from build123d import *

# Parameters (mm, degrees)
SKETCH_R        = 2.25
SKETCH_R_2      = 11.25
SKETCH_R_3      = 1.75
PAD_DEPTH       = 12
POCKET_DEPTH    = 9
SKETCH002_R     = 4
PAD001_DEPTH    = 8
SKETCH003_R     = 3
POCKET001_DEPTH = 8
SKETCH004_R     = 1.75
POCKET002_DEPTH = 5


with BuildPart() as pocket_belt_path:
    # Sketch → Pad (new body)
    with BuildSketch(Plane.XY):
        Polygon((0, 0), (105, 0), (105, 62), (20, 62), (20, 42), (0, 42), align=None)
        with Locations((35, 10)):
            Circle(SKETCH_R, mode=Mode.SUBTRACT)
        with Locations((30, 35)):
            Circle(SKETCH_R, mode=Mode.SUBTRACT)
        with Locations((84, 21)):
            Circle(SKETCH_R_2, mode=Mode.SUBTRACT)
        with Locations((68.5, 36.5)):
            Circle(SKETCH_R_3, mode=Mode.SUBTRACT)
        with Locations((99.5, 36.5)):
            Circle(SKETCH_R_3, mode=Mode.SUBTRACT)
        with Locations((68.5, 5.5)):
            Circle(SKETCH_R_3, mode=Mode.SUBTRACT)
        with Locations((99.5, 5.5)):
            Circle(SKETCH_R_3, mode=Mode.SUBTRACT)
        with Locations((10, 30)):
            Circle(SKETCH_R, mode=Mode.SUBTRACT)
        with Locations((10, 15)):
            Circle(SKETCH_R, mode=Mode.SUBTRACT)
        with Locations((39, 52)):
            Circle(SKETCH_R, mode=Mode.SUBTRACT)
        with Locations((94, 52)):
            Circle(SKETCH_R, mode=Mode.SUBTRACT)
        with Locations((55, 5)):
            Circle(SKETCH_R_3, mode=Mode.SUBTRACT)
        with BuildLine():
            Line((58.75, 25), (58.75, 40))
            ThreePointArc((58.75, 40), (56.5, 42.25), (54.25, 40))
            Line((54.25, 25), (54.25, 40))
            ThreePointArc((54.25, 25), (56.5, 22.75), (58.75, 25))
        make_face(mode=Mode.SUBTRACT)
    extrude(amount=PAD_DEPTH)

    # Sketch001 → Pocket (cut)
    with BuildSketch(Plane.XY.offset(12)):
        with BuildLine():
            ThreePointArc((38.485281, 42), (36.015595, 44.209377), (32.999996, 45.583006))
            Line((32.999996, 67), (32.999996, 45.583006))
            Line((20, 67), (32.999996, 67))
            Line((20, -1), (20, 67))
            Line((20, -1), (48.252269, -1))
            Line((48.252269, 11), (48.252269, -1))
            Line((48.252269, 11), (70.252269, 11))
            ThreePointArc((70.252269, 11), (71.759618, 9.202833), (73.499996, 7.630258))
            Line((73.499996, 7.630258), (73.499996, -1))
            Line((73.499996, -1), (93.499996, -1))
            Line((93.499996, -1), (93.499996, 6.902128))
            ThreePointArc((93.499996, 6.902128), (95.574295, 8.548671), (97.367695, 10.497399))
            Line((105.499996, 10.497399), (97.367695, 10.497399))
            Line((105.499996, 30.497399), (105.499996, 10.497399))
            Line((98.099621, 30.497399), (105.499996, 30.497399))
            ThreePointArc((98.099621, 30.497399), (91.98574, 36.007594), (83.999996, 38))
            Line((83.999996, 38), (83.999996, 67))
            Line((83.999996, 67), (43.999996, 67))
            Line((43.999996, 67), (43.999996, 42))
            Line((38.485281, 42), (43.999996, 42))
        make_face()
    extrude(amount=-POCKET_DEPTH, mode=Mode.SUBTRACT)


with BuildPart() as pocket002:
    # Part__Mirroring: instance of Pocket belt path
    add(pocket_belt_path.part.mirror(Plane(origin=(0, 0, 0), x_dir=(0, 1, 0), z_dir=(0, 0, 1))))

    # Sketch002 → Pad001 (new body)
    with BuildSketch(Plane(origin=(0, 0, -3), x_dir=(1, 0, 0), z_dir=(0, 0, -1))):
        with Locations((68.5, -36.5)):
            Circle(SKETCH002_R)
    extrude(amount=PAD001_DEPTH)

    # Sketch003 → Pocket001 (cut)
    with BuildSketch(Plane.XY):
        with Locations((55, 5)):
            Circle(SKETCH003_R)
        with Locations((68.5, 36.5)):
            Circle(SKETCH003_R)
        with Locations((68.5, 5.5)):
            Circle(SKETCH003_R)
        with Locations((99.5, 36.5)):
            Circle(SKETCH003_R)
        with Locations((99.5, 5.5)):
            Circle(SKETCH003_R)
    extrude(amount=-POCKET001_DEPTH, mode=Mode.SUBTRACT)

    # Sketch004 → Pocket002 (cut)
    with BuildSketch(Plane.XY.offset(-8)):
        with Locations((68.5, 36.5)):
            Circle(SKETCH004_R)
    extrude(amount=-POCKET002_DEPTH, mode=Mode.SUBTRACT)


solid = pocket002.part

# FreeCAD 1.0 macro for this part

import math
import FreeCAD as App
import Part
import Sketcher

V = App.Vector
Q = App.Units.Quantity


def add_polygon(sketch, points):
    """Adds a closed chain of lines whose ends are joined by coincident constraints."""
    first, n = sketch.GeometryCount, len(points)
    for a, b in zip(points, points[1:] + points[:1]):
        sketch.addGeometry(Part.LineSegment(App.Vector(*a, 0), App.Vector(*b, 0)), False)
    for i in range(n):
        sketch.addConstraint(Sketcher.Constraint("Coincident", first + i, 2, first + (i + 1) % n, 1))

doc = App.newDocument("Part")
body = doc.addObject("PartDesign::Body", "Body")

# Sketch on XY plane
sketch1 = body.newObject("Sketcher::SketchObject", "Sketch")
sketch1.AttachmentSupport = (doc.getObject("XY_Plane"), [""])
sketch1.MapMode = "FlatFace"
add_polygon(sketch1, [(0, 0), (105, 0), (105, 62), (20, 62), (20, 42), (0, 42)])  # lines 0-5
sketch1.addGeometry(Part.Circle(V(10, 15, 0), V(0, 0, 1), 2.2), False)  # 6
sketch1.addGeometry(Part.Circle(V(35, 10, 0), V(0, 0, 1), 2.2), False)  # 7
sketch1.addGeometry(Part.Circle(V(55, 5, 0), V(0, 0, 1), 1.8), False)  # 8
sketch1.addGeometry(Part.Circle(V(68.5, 5.5, 0), V(0, 0, 1), 1.8), False)  # 9
sketch1.addGeometry(Part.Circle(V(99.5, 5.5, 0), V(0, 0, 1), 1.8), False)  # 10
sketch1.addGeometry(Part.Circle(V(84, 21, 0), V(0, 0, 1), 11.2), False)  # 11
sketch1.addGeometry(Part.Circle(V(10, 30, 0), V(0, 0, 1), 2.2), False)  # 12
sketch1.addGeometry(Part.Circle(V(30, 35, 0), V(0, 0, 1), 2.2), False)  # 13
sketch1.addGeometry(Part.Circle(V(39, 52, 0), V(0, 0, 1), 2.2), False)  # 14
sketch1.addGeometry(Part.LineSegment(V(58.8, 40, 0), V(58.8, 25, 0)), False)  # 15
sketch1.addGeometry(Part.ArcOfCircle(Part.Circle(V(56.5, 25, 0), V(0, 0, 1), 2.2), math.radians(180), math.radians(360)), False)  # 16
sketch1.addGeometry(Part.LineSegment(V(54.2, 25, 0), V(54.2, 40, 0)), False)  # 17
sketch1.addGeometry(Part.ArcOfCircle(Part.Circle(V(56.5, 40, 0), V(0, 0, 1), 2.2), math.radians(0), math.radians(180)), False)  # 18
sketch1.addGeometry(Part.Circle(V(68.5, 36.5, 0), V(0, 0, 1), 1.8), False)  # 19
sketch1.addGeometry(Part.Circle(V(99.5, 36.5, 0), V(0, 0, 1), 1.8), False)  # 20
sketch1.addGeometry(Part.Circle(V(94, 52, 0), V(0, 0, 1), 2.2), False)  # 21
sketch1.addConstraint(Sketcher.Constraint("Tangent", 15, 2, 16, 2))
sketch1.addConstraint(Sketcher.Constraint("Tangent", 16, 1, 17, 1))
sketch1.addConstraint(Sketcher.Constraint("Tangent", 17, 2, 18, 2))
sketch1.addConstraint(Sketcher.Constraint("Tangent", 18, 1, 15, 1))
sketch1.addConstraint(Sketcher.Constraint("Horizontal", 0))
sketch1.addConstraint(Sketcher.Constraint("Vertical", 1))
sketch1.addConstraint(Sketcher.Constraint("Horizontal", 2))
sketch1.addConstraint(Sketcher.Constraint("Vertical", 3))
sketch1.addConstraint(Sketcher.Constraint("Horizontal", 4))
sketch1.addConstraint(Sketcher.Constraint("Vertical", 5))
sketch1.addConstraint(Sketcher.Constraint("Vertical", 15))
sketch1.addConstraint(Sketcher.Constraint("Vertical", 17))
sketch1.addConstraint(Sketcher.Constraint("Coincident", 5, 2, -1, 1))
sketch1.addConstraint(Sketcher.Constraint("Equal", 6, 7))
sketch1.addConstraint(Sketcher.Constraint("Equal", 8, 9))
sketch1.addConstraint(Sketcher.Constraint("Equal", 9, 10))
sketch1.addConstraint(Sketcher.Constraint("Equal", 7, 12))
sketch1.addConstraint(Sketcher.Constraint("Equal", 12, 13))
sketch1.addConstraint(Sketcher.Constraint("Equal", 13, 14))
sketch1.addConstraint(Sketcher.Constraint("Equal", 14, 16))
sketch1.addConstraint(Sketcher.Constraint("Equal", 10, 19))
sketch1.addConstraint(Sketcher.Constraint("Equal", 19, 20))
sketch1.addConstraint(Sketcher.Constraint("Equal", 18, 21))
sketch1.addConstraint(Sketcher.Constraint("Horizontal", 9, 3, 10, 3))
sketch1.addConstraint(Sketcher.Constraint("Horizontal", 19, 3, 20, 3))
sketch1.addConstraint(Sketcher.Constraint("Horizontal", 14, 3, 21, 3))
sketch1.addConstraint(Sketcher.Constraint("Vertical", 6, 3, 12, 3))
sketch1.addConstraint(Sketcher.Constraint("Vertical", 9, 3, 19, 3))
sketch1.addConstraint(Sketcher.Constraint("Vertical", 10, 3, 20, 3))
sketch1.addConstraint(Sketcher.Constraint("Equal", 4, 3))
sketch1.addConstraint(Sketcher.Constraint("Diameter", 6, Q("4.5 mm")))
sketch1.addConstraint(Sketcher.Constraint("Diameter", 8, Q("3.5 mm")))
sketch1.addConstraint(Sketcher.Constraint("Diameter", 11, Q("22.5 mm")))
sketch1.addConstraint(Sketcher.Constraint("DistanceX", 0, 1, 0, 2, Q("105 mm")))
sketch1.addConstraint(Sketcher.Constraint("DistanceX", 2, 2, 2, 1, Q("85 mm")))
sketch1.addConstraint(Sketcher.Constraint("DistanceY", 1, 1, 1, 2, Q("62 mm")))
sketch1.addConstraint(Sketcher.Constraint("DistanceY", 15, 2, 15, 1, Q("15 mm")))
sketch1.addConstraint(Sketcher.Constraint("DistanceX", -1, 1, 6, 3, Q("10 mm")))
sketch1.addConstraint(Sketcher.Constraint("DistanceY", -1, 1, 6, 3, Q("15 mm")))
sketch1.addConstraint(Sketcher.Constraint("DistanceX", -1, 1, 7, 3, Q("35 mm")))
sketch1.addConstraint(Sketcher.Constraint("DistanceY", -1, 1, 7, 3, Q("10 mm")))
sketch1.addConstraint(Sketcher.Constraint("DistanceX", -1, 1, 8, 3, Q("55 mm")))
sketch1.addConstraint(Sketcher.Constraint("DistanceY", -1, 1, 8, 3, Q("5 mm")))
sketch1.addConstraint(Sketcher.Constraint("DistanceX", -1, 1, 11, 3, Q("84 mm")))
sketch1.addConstraint(Sketcher.Constraint("DistanceY", -1, 1, 11, 3, Q("21 mm")))
sketch1.addConstraint(Sketcher.Constraint("DistanceY", -1, 1, 12, 3, Q("30 mm")))
sketch1.addConstraint(Sketcher.Constraint("DistanceX", -1, 1, 13, 3, Q("30 mm")))
sketch1.addConstraint(Sketcher.Constraint("DistanceY", -1, 1, 13, 3, Q("35 mm")))
sketch1.addConstraint(Sketcher.Constraint("DistanceX", -1, 1, 14, 3, Q("39 mm")))
sketch1.addConstraint(Sketcher.Constraint("DistanceY", -1, 1, 14, 3, Q("52 mm")))
sketch1.addConstraint(Sketcher.Constraint("DistanceY", -1, 1, 16, 3, Q("25 mm")))
sketch1.addConstraint(Sketcher.Constraint("DistanceX", -1, 1, 21, 3, Q("94 mm")))
sketch1.addConstraint(Sketcher.Constraint("DistanceX", 9, 3, 10, 3, Q("31 mm")))
sketch1.addConstraint(Sketcher.Constraint("DistanceX", 16, 3, 9, 3, Q("12 mm")))
sketch1.addConstraint(Sketcher.Constraint("DistanceY", 9, 3, 19, 3, Q("31 mm")))
sketch1.addConstraint(Sketcher.Constraint("DistanceX", -1, 1, 9, 3, Q("68.5 mm")))
sketch1.addConstraint(Sketcher.Constraint("DistanceY", -1, 1, 9, 3, Q("5.5 mm")))
pad1 = body.newObject("PartDesign::Pad", "Pad")
pad1.Profile = sketch1
pad1.Length = 12

# Sketch on XY plane
sketch2 = body.newObject("Sketcher::SketchObject", "Sketch001")
sketch2.AttachmentSupport = (doc.getObject("XY_Plane"), [""])
sketch2.MapMode = "FlatFace"
sketch2.AttachmentOffset = App.Placement(V(0, 0, 12), App.Rotation())
sketch2.addGeometry(Part.ArcOfCircle(Part.Circle(V(30, 35, 0), V(0, 0, 1), 11), math.radians(40), math.radians(74)), False)
sketch2.addGeometry(Part.LineSegment(V(33, 45.6, 0), V(33, 67, 0)), False)
sketch2.addGeometry(Part.LineSegment(V(33, 67, 0), V(20, 67, 0)), False)
sketch2.addGeometry(Part.LineSegment(V(20, 67, 0), V(20, -1, 0)), False)
sketch2.addGeometry(Part.LineSegment(V(20, -1, 0), V(48.3, -1, 0)), False)
sketch2.addGeometry(Part.LineSegment(V(48.3, -1, 0), V(48.3, 11, 0)), False)
sketch2.addGeometry(Part.LineSegment(V(48.3, 11, 0), V(70.3, 11, 0)), False)
sketch2.addGeometry(Part.ArcOfCircle(Part.Circle(V(84, 21, 0), V(0, 0, 1), 17), math.radians(-143.97), math.radians(-128.14)), False)
sketch2.addGeometry(Part.LineSegment(V(73.5, 7.6, 0), V(73.5, -1, 0)), False)
sketch2.addGeometry(Part.LineSegment(V(73.5, -1, 0), V(93.5, -1, 0)), False)
sketch2.addGeometry(Part.LineSegment(V(93.5, -1, 0), V(93.5, 6.9, 0)), False)
sketch2.addGeometry(Part.ArcOfCircle(Part.Circle(V(84, 21, 0), V(0, 0, 1), 17), math.radians(-56.03), math.radians(-38.16)), False)
sketch2.addGeometry(Part.LineSegment(V(97.4, 10.5, 0), V(105.5, 10.5, 0)), False)
sketch2.addGeometry(Part.LineSegment(V(105.5, 10.5, 0), V(105.5, 30.5, 0)), False)
sketch2.addGeometry(Part.LineSegment(V(105.5, 30.5, 0), V(98.1, 30.5, 0)), False)
sketch2.addGeometry(Part.ArcOfCircle(Part.Circle(V(84, 21, 0), V(0, 0, 1), 17), math.radians(34), math.radians(90)), False)
sketch2.addGeometry(Part.LineSegment(V(84, 38, 0), V(84, 67, 0)), False)
sketch2.addGeometry(Part.LineSegment(V(84, 67, 0), V(44, 67, 0)), False)
sketch2.addGeometry(Part.LineSegment(V(44, 67, 0), V(44, 42, 0)), False)
sketch2.addGeometry(Part.LineSegment(V(44, 42, 0), V(38.5, 42, 0)), False)
sketch2.addConstraint(Sketcher.Constraint("Coincident", 0, 2, 1, 1))
sketch2.addConstraint(Sketcher.Constraint("Coincident", 1, 2, 2, 1))
sketch2.addConstraint(Sketcher.Constraint("Coincident", 2, 2, 3, 1))
sketch2.addConstraint(Sketcher.Constraint("Coincident", 3, 2, 4, 1))
sketch2.addConstraint(Sketcher.Constraint("Coincident", 4, 2, 5, 1))
sketch2.addConstraint(Sketcher.Constraint("Coincident", 5, 2, 6, 1))
sketch2.addConstraint(Sketcher.Constraint("Coincident", 6, 2, 7, 1))
sketch2.addConstraint(Sketcher.Constraint("Coincident", 7, 2, 8, 1))
sketch2.addConstraint(Sketcher.Constraint("Coincident", 8, 2, 9, 1))
sketch2.addConstraint(Sketcher.Constraint("Coincident", 9, 2, 10, 1))
sketch2.addConstraint(Sketcher.Constraint("Coincident", 10, 2, 11, 1))
sketch2.addConstraint(Sketcher.Constraint("Coincident", 11, 2, 12, 1))
sketch2.addConstraint(Sketcher.Constraint("Coincident", 12, 2, 13, 1))
sketch2.addConstraint(Sketcher.Constraint("Coincident", 13, 2, 14, 1))
sketch2.addConstraint(Sketcher.Constraint("Coincident", 14, 2, 15, 1))
sketch2.addConstraint(Sketcher.Constraint("Coincident", 15, 2, 16, 1))
sketch2.addConstraint(Sketcher.Constraint("Coincident", 16, 2, 17, 1))
sketch2.addConstraint(Sketcher.Constraint("Coincident", 17, 2, 18, 1))
sketch2.addConstraint(Sketcher.Constraint("Coincident", 18, 2, 19, 1))
sketch2.addConstraint(Sketcher.Constraint("Coincident", 19, 2, 0, 1))
sketch2.addConstraint(Sketcher.Constraint("Vertical", 1))
sketch2.addConstraint(Sketcher.Constraint("Horizontal", 2))
sketch2.addConstraint(Sketcher.Constraint("Vertical", 3))
sketch2.addConstraint(Sketcher.Constraint("Horizontal", 4))
sketch2.addConstraint(Sketcher.Constraint("Vertical", 5))
sketch2.addConstraint(Sketcher.Constraint("Horizontal", 6))
sketch2.addConstraint(Sketcher.Constraint("Vertical", 8))
sketch2.addConstraint(Sketcher.Constraint("Horizontal", 9))
sketch2.addConstraint(Sketcher.Constraint("Vertical", 10))
sketch2.addConstraint(Sketcher.Constraint("Horizontal", 12))
sketch2.addConstraint(Sketcher.Constraint("Vertical", 13))
sketch2.addConstraint(Sketcher.Constraint("Horizontal", 14))
sketch2.addConstraint(Sketcher.Constraint("Vertical", 16))
sketch2.addConstraint(Sketcher.Constraint("Horizontal", 17))
sketch2.addConstraint(Sketcher.Constraint("Vertical", 18))
sketch2.addConstraint(Sketcher.Constraint("Horizontal", 19))
sketch2.addConstraint(Sketcher.Constraint("Coincident", 15, 3, 7, 3))
sketch2.addConstraint(Sketcher.Constraint("Horizontal", 4, 2, 8, 2))
sketch2.addConstraint(Sketcher.Constraint("Horizontal", 2, 2, 16, 2))
sketch2.addConstraint(Sketcher.Constraint("Equal", 9, 13))
sketch2.addConstraint(Sketcher.Constraint("DistanceX", 6, 1, 6, 2, Q("22 mm")))
sketch2.addConstraint(Sketcher.Constraint("DistanceX", 9, 1, 9, 2, Q("20 mm")))
sketch2.addConstraint(Sketcher.Constraint("DistanceX", 17, 2, 17, 1, Q("40 mm")))
sketch2.addConstraint(Sketcher.Constraint("DistanceY", 3, 2, 3, 1, Q("68 mm")))
sketch2.addConstraint(Sketcher.Constraint("DistanceY", 5, 1, 5, 2, Q("12 mm")))
sketch2.addConstraint(Sketcher.Constraint("DistanceY", 16, 1, 16, 2, Q("29 mm")))
sketch2.addConstraint(Sketcher.Constraint("DistanceY", 18, 2, 18, 1, Q("25 mm")))
sketch2.addConstraint(Sketcher.Constraint("DistanceY", -1, 1, 1, 2, Q("67 mm")))
sketch2.addConstraint(Sketcher.Constraint("DistanceX", -1, 1, 2, 2, Q("20 mm")))
sketch2.addConstraint(Sketcher.Constraint("DistanceX", 10, 2, 12, 2, Q("12 mm")))
sketch2.addConstraint(Sketcher.Constraint("DistanceX", 1, 2, 17, 2, Q("11 mm")))
sketch2.addConstraint(Sketcher.Constraint("DistanceX", 15, 2, 13, 2, Q("21.5 mm")))
sketch2.addConstraint(Sketcher.Constraint("Radius", 7, Q("16.99999 mm")))
sketch2.addConstraint(Sketcher.Constraint("Radius", 11, Q("17.00002 mm")))
sketch2.addConstraint(Sketcher.Constraint("DistanceX", 12, 1, 12, 2, Q("8.132301 mm")))
sketch2.addConstraint(Sketcher.Constraint("Radius", 0, Q("10.999985 mm")))
sketch2.addConstraint(Sketcher.Constraint("Radius", 15, Q("17.000005 mm")))
sketch2.addConstraint(Sketcher.Constraint("DistanceX", 4, 1, 4, 2, Q("28.252269 mm")))
sketch2.addConstraint(Sketcher.Constraint("DistanceY", 8, 2, 8, 1, Q("8.630258 mm")))
sketch2.addConstraint(Sketcher.Constraint("DistanceY", 10, 1, 10, 2, Q("7.902128 mm")))
sketch2.addConstraint(Sketcher.Constraint("DistanceY", -1, 1, 11, 2, Q("10.497399 mm")))
sketch2.addConstraint(Sketcher.Constraint("DistanceX", 19, 2, 19, 1, Q("5.514715 mm")))
sketch2.addConstraint(Sketcher.Constraint("DistanceY", 1, 1, 1, 2, Q("21.416994 mm")))
pocket1 = body.newObject("PartDesign::Pocket", "Pocket")
pocket1.Profile = sketch2
pocket1.Length = 9
body2 = doc.addObject("PartDesign::Body", "Body001")
doc.recompute()

mirroring = doc.addObject("Part::Mirroring", "Mirroring")
mirroring.Source = body
mirroring.Base = V(0, 0, 0)
mirroring.Normal = V(0, 0, 1)
body2.BaseFeature = mirroring
doc.recompute()

# Sketch on XY plane
sketch3 = body2.newObject("Sketcher::SketchObject", "Sketch002")
sketch3.AttachmentSupport = (doc.getObject("XY_Plane001"), [""])
sketch3.MapMode = "FlatFace"
sketch3.AttachmentOffset = App.Placement(V(0, 0, -3), App.Rotation())
sketch3.addGeometry(Part.Circle(V(68.5, 36.5, 0), V(0, 0, 1), 4), False)
sketch3.addConstraint(Sketcher.Constraint("Diameter", 0, Q("8 mm")))
sketch3.addConstraint(Sketcher.Constraint("DistanceX", -1, 1, 0, 3, Q("68.5 mm")))
sketch3.addConstraint(Sketcher.Constraint("DistanceY", -1, 1, 0, 3, Q("36.5 mm")))
pad2 = body2.newObject("PartDesign::Pad", "Pad001")
pad2.Profile = sketch3
pad2.Length = 8
pad2.Reversed = True

# Sketch on XY plane
sketch4 = body2.newObject("Sketcher::SketchObject", "Sketch003")
sketch4.AttachmentSupport = (doc.getObject("XY_Plane001"), [""])
sketch4.MapMode = "FlatFace"
sketch4.addGeometry(Part.Circle(V(55, 5, 0), V(0, 0, 1), 3), False)
sketch4.addGeometry(Part.Circle(V(68.5, 36.5, 0), V(0, 0, 1), 3), False)
sketch4.addGeometry(Part.Circle(V(68.5, 5.5, 0), V(0, 0, 1), 3), False)
sketch4.addGeometry(Part.Circle(V(99.5, 36.5, 0), V(0, 0, 1), 3), False)
sketch4.addGeometry(Part.Circle(V(99.5, 5.5, 0), V(0, 0, 1), 3), False)
sketch4.addConstraint(Sketcher.Constraint("Equal", 0, 1))
sketch4.addConstraint(Sketcher.Constraint("Equal", 1, 2))
sketch4.addConstraint(Sketcher.Constraint("Equal", 2, 3))
sketch4.addConstraint(Sketcher.Constraint("Equal", 3, 4))
sketch4.addConstraint(Sketcher.Constraint("Horizontal", 1, 3, 3, 3))
sketch4.addConstraint(Sketcher.Constraint("Horizontal", 2, 3, 4, 3))
sketch4.addConstraint(Sketcher.Constraint("Vertical", 1, 3, 2, 3))
sketch4.addConstraint(Sketcher.Constraint("Vertical", 3, 3, 4, 3))
sketch4.addConstraint(Sketcher.Constraint("Diameter", 0, Q("6 mm")))
sketch4.addConstraint(Sketcher.Constraint("DistanceX", -1, 1, 0, 3, Q("55 mm")))
sketch4.addConstraint(Sketcher.Constraint("DistanceY", -1, 1, 0, 3, Q("5 mm")))
sketch4.addConstraint(Sketcher.Constraint("DistanceY", 2, 3, 1, 3, Q("31 mm")))
sketch4.addConstraint(Sketcher.Constraint("DistanceX", 1, 3, 3, 3, Q("31 mm")))
sketch4.addConstraint(Sketcher.Constraint("DistanceX", -1, 1, 1, 3, Q("68.5 mm")))
sketch4.addConstraint(Sketcher.Constraint("DistanceY", -1, 1, 1, 3, Q("36.5 mm")))
pocket2 = body2.newObject("PartDesign::Pocket", "Pocket001")
pocket2.Profile = sketch4
pocket2.Length = 8

# Sketch on XY plane
sketch5 = body2.newObject("Sketcher::SketchObject", "Sketch004")
sketch5.AttachmentSupport = (doc.getObject("XY_Plane001"), [""])
sketch5.MapMode = "FlatFace"
sketch5.AttachmentOffset = App.Placement(V(0, 0, -8), App.Rotation())
sketch5.addGeometry(Part.Circle(V(68.5, 36.5, 0), V(0, 0, 1), 1.8), False)
sketch5.addConstraint(Sketcher.Constraint("Diameter", 0, Q("3.5 mm")))
sketch5.addConstraint(Sketcher.Constraint("DistanceX", -1, 1, 0, 3, Q("68.5 mm")))
sketch5.addConstraint(Sketcher.Constraint("DistanceY", -1, 1, 0, 3, Q("36.5 mm")))
pocket3 = body2.newObject("PartDesign::Pocket", "Pocket002")
pocket3.Profile = sketch5
pocket3.Length = 5
body.Visibility = False
mirroring.Visibility = False

doc.recompute()
